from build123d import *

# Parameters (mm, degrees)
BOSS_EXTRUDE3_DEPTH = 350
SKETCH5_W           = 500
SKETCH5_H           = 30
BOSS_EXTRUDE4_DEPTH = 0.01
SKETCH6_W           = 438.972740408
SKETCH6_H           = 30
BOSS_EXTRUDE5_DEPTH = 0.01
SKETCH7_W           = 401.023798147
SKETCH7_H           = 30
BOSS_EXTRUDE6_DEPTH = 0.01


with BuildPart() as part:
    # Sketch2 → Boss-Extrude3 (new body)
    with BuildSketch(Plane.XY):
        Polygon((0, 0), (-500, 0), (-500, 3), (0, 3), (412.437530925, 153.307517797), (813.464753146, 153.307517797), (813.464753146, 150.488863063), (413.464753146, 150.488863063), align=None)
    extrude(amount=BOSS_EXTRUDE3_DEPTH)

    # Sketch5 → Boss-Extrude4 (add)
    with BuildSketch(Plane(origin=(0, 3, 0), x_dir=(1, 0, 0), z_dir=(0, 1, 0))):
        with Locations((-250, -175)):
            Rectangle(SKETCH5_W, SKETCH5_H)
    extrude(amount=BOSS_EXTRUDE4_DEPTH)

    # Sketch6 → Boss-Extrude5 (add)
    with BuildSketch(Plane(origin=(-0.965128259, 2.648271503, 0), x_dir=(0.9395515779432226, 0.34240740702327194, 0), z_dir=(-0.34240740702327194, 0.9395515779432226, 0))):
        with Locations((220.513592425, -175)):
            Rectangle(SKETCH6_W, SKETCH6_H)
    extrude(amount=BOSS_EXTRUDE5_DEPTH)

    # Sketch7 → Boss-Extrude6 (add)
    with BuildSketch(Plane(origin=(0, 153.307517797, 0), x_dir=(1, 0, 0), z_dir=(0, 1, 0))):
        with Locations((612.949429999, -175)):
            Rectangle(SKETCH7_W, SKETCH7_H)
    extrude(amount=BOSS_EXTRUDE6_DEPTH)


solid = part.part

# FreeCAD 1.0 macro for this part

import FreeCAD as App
import Part
import Sketcher
Q = App.Units.Quantity

doc = App.newDocument("Part")
body = doc.addObject("PartDesign::Body", "Body")

# Sketch on XY plane
sketch1 = body.newObject("Sketcher::SketchObject", "Sketch")
sketch1.AttachmentSupport = (doc.getObject("XY_Plane"), [""])
sketch1.MapMode = "FlatFace"
sketch1.addGeometry([
    Part.LineSegment(App.Vector(-500, 0, 0), App.Vector(0, 0, 0)),  # 0
    Part.LineSegment(App.Vector(0, 0, 0), App.Vector(413.5, 150.5, 0)),  # 1
    Part.LineSegment(App.Vector(413.5, 150.5, 0), App.Vector(813.5, 150.5, 0)),  # 2
    Part.LineSegment(App.Vector(813.5, 150.5, 0), App.Vector(813.5, 153.3, 0)),  # 3
    Part.LineSegment(App.Vector(813.5, 153.3, 0), App.Vector(412.4, 153.3, 0)),  # 4
    Part.LineSegment(App.Vector(412.4, 153.3, 0), App.Vector(0, 3, 0)),  # 5
    Part.LineSegment(App.Vector(0, 3, 0), App.Vector(-500, 3, 0)),  # 6
    Part.LineSegment(App.Vector(-500, 3, 0), App.Vector(-500, 0, 0)),  # 7
], False)
sketch1.addConstraint([
    Sketcher.Constraint("Coincident", 0, 2, 1, 1),
    Sketcher.Constraint("Coincident", 1, 2, 2, 1),
    Sketcher.Constraint("Coincident", 2, 2, 3, 1),
    Sketcher.Constraint("Coincident", 3, 2, 4, 1),
    Sketcher.Constraint("Coincident", 4, 2, 5, 1),
    Sketcher.Constraint("Coincident", 5, 2, 6, 1),
    Sketcher.Constraint("Coincident", 6, 2, 7, 1),
    Sketcher.Constraint("Coincident", 7, 2, 0, 1),
    Sketcher.Constraint("Horizontal", 0),
    Sketcher.Constraint("Horizontal", 2),
    Sketcher.Constraint("Vertical", 3),
    Sketcher.Constraint("Horizontal", 4),
    Sketcher.Constraint("Horizontal", 6),
    Sketcher.Constraint("Vertical", 7),
    Sketcher.Constraint("Coincident", 0, 2, -1, 1),
    Sketcher.Constraint("PointOnObject", 5, 2, -2),
    Sketcher.Constraint("DistanceX", 0, 1, 0, 2, 500.0),
    Sketcher.Constraint("DistanceX", 2, 1, 2, 2, 400.0),
    Sketcher.Constraint("DistanceY", 7, 2, 7, 1, 3.0),
    Sketcher.Constraint("Angle", 1, Q("20 deg")),
    Sketcher.Constraint("Distance", 1, 440.0),
    Sketcher.Constraint("Distance", 5, 438.97274),
    Sketcher.Constraint("DistanceX", 4, 2, 4, 1, 401.027222),
])
pad1 = body.newObject("PartDesign::Pad", "Pad")
pad1.Profile = sketch1
pad1.Length = 350

# Sketch on XZ plane
sketch2 = body.newObject("Sketcher::SketchObject", "Sketch001")
sketch2.AttachmentSupport = (doc.getObject("XZ_Plane"), [""])
sketch2.MapMode = "FlatFace"
sketch2.AttachmentOffset = App.Placement(App.Vector(0, 0, -3), App.Rotation())
sketch2.addGeometry([
    Part.LineSegment(App.Vector(-500, 160, 0), App.Vector(-500, 190, 0)),
    Part.LineSegment(App.Vector(-500, 190, 0), App.Vector(0, 190, 0)),
    Part.LineSegment(App.Vector(0, 190, 0), App.Vector(0, 160, 0)),
    Part.LineSegment(App.Vector(0, 160, 0), App.Vector(-500, 160, 0)),
], False)
sketch2.addConstraint([
    Sketcher.Constraint("Coincident", 0, 2, 1, 1),
    Sketcher.Constraint("Coincident", 1, 2, 2, 1),
    Sketcher.Constraint("Coincident", 2, 2, 3, 1),
    Sketcher.Constraint("Coincident", 3, 2, 0, 1),
    Sketcher.Constraint("Vertical", 0),
    Sketcher.Constraint("Horizontal", 1),
    Sketcher.Constraint("Vertical", 2),
    Sketcher.Constraint("Horizontal", 3),
    Sketcher.Constraint("PointOnObject", 1, 2, -2),
    Sketcher.Constraint("DistanceX", 1, 1, 1, 2, 500.0),
    Sketcher.Constraint("DistanceY", 0, 1, 0, 2, 30.0),
    Sketcher.Constraint("DistanceY", -1, 1, 0, 2, 190.0),
])
pad2 = body.newObject("PartDesign::Pad", "Pad001")
pad2.Profile = sketch2
pad2.Length = 0.01
pad2.Reversed = True

# Sketch on an angled plane
sketch3 = body.newObject("Sketcher::SketchObject", "Sketch002")
sketch3.Placement = App.Placement(App.Vector(-0.965128, 2.648272, 0), App.Rotation(App.Vector(0.939551578, 0.342407407, 0), App.Vector(0, 0, -1), App.Vector(-0.342407407, 0.939551578, 0), "ZXY"))
sketch3.addGeometry([
    Part.LineSegment(App.Vector(1, -160, 0), App.Vector(1, -190, 0)),
    Part.LineSegment(App.Vector(1, -190, 0), App.Vector(440, -190, 0)),
    Part.LineSegment(App.Vector(440, -190, 0), App.Vector(440, -160, 0)),
    Part.LineSegment(App.Vector(440, -160, 0), App.Vector(1, -160, 0)),
], False)
sketch3.addConstraint([
    Sketcher.Constraint("Coincident", 0, 2, 1, 1),
    Sketcher.Constraint("Coincident", 1, 2, 2, 1),
    Sketcher.Constraint("Coincident", 2, 2, 3, 1),
    Sketcher.Constraint("Coincident", 3, 2, 0, 1),
    Sketcher.Constraint("Vertical", 0),
    Sketcher.Constraint("Horizontal", 1),
    Sketcher.Constraint("Vertical", 2),
    Sketcher.Constraint("Horizontal", 3),
    Sketcher.Constraint("DistanceY", 0, 2, 0, 1, 30.0),
    Sketcher.Constraint("DistanceY", 0, 2, -1, 1, 190.0),
    Sketcher.Constraint("DistanceX", 1, 1, 1, 2, 438.97274),
    Sketcher.Constraint("DistanceX", -1, 1, 0, 2, 1.027222),
])
pad3 = body.newObject("PartDesign::Pad", "Pad002")
pad3.Profile = sketch3
pad3.Length = 0.01

# Sketch on XZ plane
sketch4 = body.newObject("Sketcher::SketchObject", "Sketch003")
sketch4.AttachmentSupport = (doc.getObject("XZ_Plane"), [""])
sketch4.MapMode = "FlatFace"
sketch4.AttachmentOffset = App.Placement(App.Vector(0, 0, -153.307518), App.Rotation())
sketch4.addGeometry([
    Part.LineSegment(App.Vector(412, 160, 0), App.Vector(412, 190, 0)),
    Part.LineSegment(App.Vector(412, 190, 0), App.Vector(813, 190, 0)),
    Part.LineSegment(App.Vector(813, 190, 0), App.Vector(813, 160, 0)),
    Part.LineSegment(App.Vector(813, 160, 0), App.Vector(412, 160, 0)),
], False)
sketch4.addConstraint([
    Sketcher.Constraint("Coincident", 0, 2, 1, 1),
    Sketcher.Constraint("Coincident", 1, 2, 2, 1),
    Sketcher.Constraint("Coincident", 2, 2, 3, 1),
    Sketcher.Constraint("Coincident", 3, 2, 0, 1),
    Sketcher.Constraint("Vertical", 0),
    Sketcher.Constraint("Horizontal", 1),
    Sketcher.Constraint("Vertical", 2),
    Sketcher.Constraint("Horizontal", 3),
    Sketcher.Constraint("DistanceY", 0, 1, 0, 2, 30.0),
    Sketcher.Constraint("DistanceY", -1, 1, 0, 2, 190.0),
    Sketcher.Constraint("DistanceX", 1, 1, 1, 2, 401.023798),
    Sketcher.Constraint("DistanceX", -1, 1, 0, 2, 412.437531),
])
pad4 = body.newObject("PartDesign::Pad", "Pad003")
pad4.Profile = sketch4
pad4.Length = 0.01
pad4.Reversed = True

doc.recompute()
